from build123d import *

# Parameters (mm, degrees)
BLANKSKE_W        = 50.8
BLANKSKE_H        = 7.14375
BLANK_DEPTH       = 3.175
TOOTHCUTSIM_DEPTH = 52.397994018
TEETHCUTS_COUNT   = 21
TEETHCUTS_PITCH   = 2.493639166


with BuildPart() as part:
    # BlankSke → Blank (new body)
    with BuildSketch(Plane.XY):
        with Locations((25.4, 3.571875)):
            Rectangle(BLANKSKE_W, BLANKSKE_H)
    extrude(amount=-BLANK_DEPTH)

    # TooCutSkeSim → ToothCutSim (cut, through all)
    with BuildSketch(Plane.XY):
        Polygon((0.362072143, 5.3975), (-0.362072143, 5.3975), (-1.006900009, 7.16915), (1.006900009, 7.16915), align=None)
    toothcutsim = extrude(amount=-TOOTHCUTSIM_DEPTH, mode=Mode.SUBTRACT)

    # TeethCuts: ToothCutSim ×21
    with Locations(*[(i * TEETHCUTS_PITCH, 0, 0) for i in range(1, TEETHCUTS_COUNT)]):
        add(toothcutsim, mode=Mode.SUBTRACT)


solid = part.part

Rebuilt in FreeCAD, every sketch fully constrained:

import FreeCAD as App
import Part
import Sketcher
Q = App.Units.Quantity


def add_polygon(sketch, points):
    """Adds a closed chain of lines whose ends are joined by coincident constraints."""
    first, n = sketch.GeometryCount, len(points)
    for a, b in zip(points, points[1:] + points[:1]):
        sketch.addGeometry(Part.LineSegment(App.Vector(*a, 0), App.Vector(*b, 0)), False)
    for i in range(n):
        sketch.addConstraint(Sketcher.Constraint("Coincident", first + i, 2, first + (i + 1) % n, 1))

doc = App.newDocument("Part")
body = doc.addObject("PartDesign::Body", "Body")

sketch1 = body.newObject("Sketcher::SketchObject", "Sketch")
sketch1.AttachmentSupport = (doc.getObject("XY_Plane"), [""])
sketch1.MapMode = "FlatFace"
add_polygon(sketch1, [(0, 7), (0, 0), (51, 0), (51, 7)])
sketch1.addConstraint(Sketcher.Constraint("Vertical", 0))
sketch1.addConstraint(Sketcher.Constraint("Horizontal", 1))
sketch1.addConstraint(Sketcher.Constraint("Vertical", 2))
sketch1.addConstraint(Sketcher.Constraint("Horizontal", 3))
sketch1.addConstraint(Sketcher.Constraint("Coincident", 0, 2, -1, 1))
sketch1.addConstraint(Sketcher.Constraint("DistanceX", 1, 1, 1, 2, Q("2 in")))
sketch1.addConstraint(Sketcher.Constraint("DistanceY", 0, 2, 0, 1, Q("0.28125 in")))
pad1 = body.newObject("PartDesign::Pad", "Pad")
pad1.Profile = sketch1
pad1.Length = Q("0.125 in")
pad1.Reversed = True

sketch2 = body.newObject("Sketcher::SketchObject", "Sketch001")
sketch2.AttachmentSupport = (doc.getObject("XY_Plane"), [""])
sketch2.MapMode = "FlatFace"
add_polygon(sketch2, [(-0.4, 5.4), (0.4, 5.4), (1, 7.2), (-1, 7.2)])
sketch2.addConstraint(Sketcher.Constraint("Horizontal", 0))
sketch2.addConstraint(Sketcher.Constraint("Horizontal", 2))
sketch2.addConstraint(Sketcher.Constraint("Equal", 1, 3))
sketch2.addConstraint(Sketcher.Constraint("Angle", 1, Q("70 deg")))
sketch2.addConstraint(Sketcher.Constraint("DistanceX", 2, 2, 2, 1, 2.0138))
sketch2.addConstraint(Sketcher.Constraint("DistanceY", -1, 1, 0, 2, Q("0.2125 in")))
sketch2.addConstraint(Sketcher.Constraint("DistanceX", -1, 1, 1, 2, 1.0069))
sketch2.addConstraint(Sketcher.Constraint("Distance", 1, 1.885351))
pocket1 = body.newObject("PartDesign::Pocket", "Pocket")
pocket1.Profile = sketch2
pocket1.Type = "ThroughAll"
doc.recompute()

linearpattern = body.newObject("PartDesign::LinearPattern", "LinearPattern")
linearpattern.Originals = [pocket1]
linearpattern.Direction = (doc.getObject("X_Axis"), [""])
linearpattern.Mode = "offset"
linearpattern.Offset = 2.493639
linearpattern.Occurrences = 21
body.Tip = linearpattern

doc.recompute()
